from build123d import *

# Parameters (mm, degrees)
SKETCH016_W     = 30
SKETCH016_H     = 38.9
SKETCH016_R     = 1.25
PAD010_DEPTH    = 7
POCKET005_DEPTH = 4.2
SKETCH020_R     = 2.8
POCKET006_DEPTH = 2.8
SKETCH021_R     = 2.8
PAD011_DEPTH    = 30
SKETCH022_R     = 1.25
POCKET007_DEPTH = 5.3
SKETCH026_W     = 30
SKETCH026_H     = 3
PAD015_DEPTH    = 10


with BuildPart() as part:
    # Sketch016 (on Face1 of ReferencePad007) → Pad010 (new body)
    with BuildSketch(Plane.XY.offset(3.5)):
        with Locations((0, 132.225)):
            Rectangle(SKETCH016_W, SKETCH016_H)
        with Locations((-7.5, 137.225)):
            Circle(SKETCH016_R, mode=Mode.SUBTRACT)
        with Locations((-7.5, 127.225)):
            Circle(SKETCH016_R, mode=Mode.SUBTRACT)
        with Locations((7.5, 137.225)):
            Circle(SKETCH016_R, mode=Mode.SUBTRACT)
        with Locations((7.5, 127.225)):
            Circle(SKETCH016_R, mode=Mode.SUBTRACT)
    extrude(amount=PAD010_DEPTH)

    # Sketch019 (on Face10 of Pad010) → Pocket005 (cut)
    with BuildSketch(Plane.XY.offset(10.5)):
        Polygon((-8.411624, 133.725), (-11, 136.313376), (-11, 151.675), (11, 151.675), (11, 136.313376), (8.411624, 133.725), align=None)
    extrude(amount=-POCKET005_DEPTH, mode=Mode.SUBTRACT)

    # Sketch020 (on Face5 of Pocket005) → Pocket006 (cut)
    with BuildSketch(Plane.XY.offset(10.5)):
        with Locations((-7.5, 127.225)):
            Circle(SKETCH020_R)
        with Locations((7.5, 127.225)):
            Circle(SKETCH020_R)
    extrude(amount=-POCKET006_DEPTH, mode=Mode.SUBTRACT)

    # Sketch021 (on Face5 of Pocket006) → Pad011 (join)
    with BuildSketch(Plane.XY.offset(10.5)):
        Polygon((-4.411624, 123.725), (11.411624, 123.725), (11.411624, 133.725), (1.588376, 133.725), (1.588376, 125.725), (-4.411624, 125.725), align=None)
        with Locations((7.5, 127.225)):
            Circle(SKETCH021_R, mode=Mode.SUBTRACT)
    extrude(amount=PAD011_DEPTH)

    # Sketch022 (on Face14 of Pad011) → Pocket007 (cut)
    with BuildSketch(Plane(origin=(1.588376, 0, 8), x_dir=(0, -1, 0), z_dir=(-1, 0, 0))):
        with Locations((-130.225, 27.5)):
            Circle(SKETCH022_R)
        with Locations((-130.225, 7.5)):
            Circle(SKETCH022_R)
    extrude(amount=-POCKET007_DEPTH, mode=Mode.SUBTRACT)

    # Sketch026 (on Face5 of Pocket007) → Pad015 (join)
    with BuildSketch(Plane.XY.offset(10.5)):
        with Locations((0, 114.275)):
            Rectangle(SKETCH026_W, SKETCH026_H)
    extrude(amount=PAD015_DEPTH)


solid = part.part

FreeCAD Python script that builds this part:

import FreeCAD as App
import Part
import Sketcher

V = App.Vector
Q = App.Units.Quantity


def add_polygon(sketch, points):
    """Adds a closed chain of lines whose ends are joined by coincident constraints."""
    first, n = sketch.GeometryCount, len(points)
    for a, b in zip(points, points[1:] + points[:1]):
        sketch.addGeometry(Part.LineSegment(App.Vector(*a, 0), App.Vector(*b, 0)), False)
    for i in range(n):
        sketch.addConstraint(Sketcher.Constraint("Coincident", first + i, 2, first + (i + 1) % n, 1))

doc = App.newDocument("Part")
body = doc.addObject("PartDesign::Body", "Body")

# Sketch on XY plane
sketch1 = body.newObject("Sketcher::SketchObject", "Sketch")
sketch1.AttachmentSupport = (doc.getObject("XY_Plane"), [""])
sketch1.MapMode = "FlatFace"
sketch1.AttachmentOffset = App.Placement(V(0, 0, 3.5), App.Rotation())
add_polygon(sketch1, [(-15, 151.7), (-15, 112.8), (15, 112.8), (15, 151.7)])  # lines 0-3
sketch1.addGeometry(Part.Circle(V(-7.5, 127.2, 0), V(0, 0, 1), 1.2), False)  # 4
sketch1.addGeometry(Part.Circle(V(7.5, 127.2, 0), V(0, 0, 1), 1.2), False)  # 5
sketch1.addGeometry(Part.Circle(V(-7.5, 137.2, 0), V(0, 0, 1), 1.2), False)  # 6
sketch1.addGeometry(Part.Circle(V(7.5, 137.2, 0), V(0, 0, 1), 1.2), False)  # 7
sketch1.addConstraint([
    Sketcher.Constraint("Vertical", 0),
    Sketcher.Constraint("Horizontal", 1),
    Sketcher.Constraint("Vertical", 2),
    Sketcher.Constraint("Horizontal", 3),
    Sketcher.Constraint("Equal", 4, 5),
    Sketcher.Constraint("Equal", 5, 6),
    Sketcher.Constraint("Equal", 6, 7),
    Sketcher.Constraint("Symmetric", 4, 3, 5, 3, -2),
    Sketcher.Constraint("Symmetric", 6, 3, 7, 3, -2),
    Sketcher.Constraint("Vertical", 4, 3, 6, 3),
    Sketcher.Constraint("Diameter", 4, Q("2.5 mm")),
    Sketcher.Constraint("DistanceX", 1, 1, 1, 2, Q("30 mm")),
    Sketcher.Constraint("DistanceY", 0, 2, 0, 1, Q("38.9 mm")),
    Sketcher.Constraint("DistanceX", 0, 2, -1, 1, Q("15 mm")),
    Sketcher.Constraint("DistanceX", 4, 3, 5, 3, Q("15 mm")),
    Sketcher.Constraint("DistanceY", 4, 3, 6, 3, Q("10 mm")),
    Sketcher.Constraint("DistanceY", 0, 2, 4, 3, Q("14.45 mm")),
    Sketcher.Constraint("DistanceY", -1, 1, 4, 3, Q("127.225 mm")),
])
pad1 = body.newObject("PartDesign::Pad", "Pad")
pad1.Profile = sketch1
pad1.Length = 7

# Sketch on XY plane
sketch2 = body.newObject("Sketcher::SketchObject", "Sketch001")
sketch2.AttachmentSupport = (doc.getObject("XY_Plane"), [""])
sketch2.MapMode = "FlatFace"
sketch2.AttachmentOffset = App.Placement(V(0, 0, 10.5), App.Rotation())
add_polygon(sketch2, [(-11, 136.3), (-8.4, 133.7), (8.4, 133.7), (11, 136.3), (11, 151.7), (-11, 151.7)])  # lines 0-5
sketch2.addConstraint([
    Sketcher.Constraint("Horizontal", 1),
    Sketcher.Constraint("Vertical", 3),
    Sketcher.Constraint("Horizontal", 4),
    Sketcher.Constraint("Vertical", 5),
    Sketcher.Constraint("Symmetric", 2, 2, 5, 2, -2),
    Sketcher.Constraint("Perpendicular", 0, 2),
    Sketcher.Constraint("Equal", 0, 2),
    Sketcher.Constraint("DistanceX", 4, 2, 4, 1, Q("22 mm")),
    Sketcher.Constraint("DistanceY", 1, 2, 3, 2, Q("17.95 mm")),
    Sketcher.Constraint("DistanceY", -1, 1, 0, 2, Q("133.725 mm")),
    Sketcher.Constraint("DistanceX", 1, 1, 1, 2, Q("16.823248 mm")),
])
pocket1 = body.newObject("PartDesign::Pocket", "Pocket")
pocket1.Profile = sketch2
pocket1.Length = 4.2

# Sketch on XY plane
sketch3 = body.newObject("Sketcher::SketchObject", "Sketch002")
sketch3.AttachmentSupport = (doc.getObject("XY_Plane"), [""])
sketch3.MapMode = "FlatFace"
sketch3.AttachmentOffset = App.Placement(V(0, 0, 10.5), App.Rotation())
sketch3.addGeometry([
    Part.Circle(V(-7.5, 127.2, 0), V(0, 0, 1), 2.8),
    Part.Circle(V(7.5, 127.2, 0), V(0, 0, 1), 2.8),
], False)
sketch3.addConstraint([
    Sketcher.Constraint("Equal", 0, 1),
    Sketcher.Constraint("Symmetric", 0, 3, 1, 3, -2),
    Sketcher.Constraint("Diameter", 0, Q("5.6 mm")),
    Sketcher.Constraint("DistanceX", 0, 3, 1, 3, Q("15 mm")),
    Sketcher.Constraint("DistanceY", -1, 1, 0, 3, Q("127.225 mm")),
])
pocket2 = body.newObject("PartDesign::Pocket", "Pocket001")
pocket2.Profile = sketch3
pocket2.Length = 2.8

# Sketch on XY plane
sketch4 = body.newObject("Sketcher::SketchObject", "Sketch003")
sketch4.AttachmentSupport = (doc.getObject("XY_Plane"), [""])
sketch4.MapMode = "FlatFace"
sketch4.AttachmentOffset = App.Placement(V(0, 0, 10.5), App.Rotation())
add_polygon(sketch4, [(-4.4, 123.7), (11.4, 123.7), (11.4, 133.7), (1.6, 133.7), (1.6, 125.7), (-4.4, 125.7)])  # lines 0-5
sketch4.addGeometry(Part.Circle(V(7.5, 127.2, 0), V(0, 0, 1), 2.8), False)  # 6
sketch4.addConstraint([
    Sketcher.Constraint("Horizontal", 0),
    Sketcher.Constraint("Vertical", 1),
    Sketcher.Constraint("Horizontal", 2),
    Sketcher.Constraint("Vertical", 3),
    Sketcher.Constraint("Horizontal", 4),
    Sketcher.Constraint("Vertical", 5),
    Sketcher.Constraint("Diameter", 6, Q("5.6 mm")),
    Sketcher.Constraint("DistanceX", 4, 2, 4, 1, Q("6 mm")),
    Sketcher.Constraint("DistanceY", 1, 1, 1, 2, Q("10 mm")),
    Sketcher.Constraint("DistanceY", 3, 2, 3, 1, Q("8 mm")),
    Sketcher.Constraint("DistanceX", -1, 1, 6, 3, Q("7.5 mm")),
    Sketcher.Constraint("DistanceY", 0, 2, 6, 3, Q("3.5 mm")),
    Sketcher.Constraint("DistanceY", -1, 1, 6, 3, Q("127.225 mm")),
    Sketcher.Constraint("DistanceX", 0, 1, 0, 2, Q("15.823248 mm")),
    Sketcher.Constraint("DistanceX", -1, 1, 0, 2, Q("11.411624 mm")),
])
pad2 = body.newObject("PartDesign::Pad", "Pad001")
pad2.Profile = sketch4
pad2.Length = 30

# Sketch on YZ plane
sketch5 = body.newObject("Sketcher::SketchObject", "Sketch004")
sketch5.AttachmentSupport = (doc.getObject("YZ_Plane"), [""])
sketch5.MapMode = "FlatFace"
sketch5.AttachmentOffset = App.Placement(V(0, 0, 1.588376), App.Rotation())
sketch5.addGeometry([
    Part.Circle(V(130.2, 35.5, 0), V(0, 0, 1), 1.2),
    Part.Circle(V(130.2, 15.5, 0), V(0, 0, 1), 1.2),
], False)
sketch5.addConstraint([
    Sketcher.Constraint("Equal", 0, 1),
    Sketcher.Constraint("Vertical", 0, 3, 1, 3),
    Sketcher.Constraint("Diameter", 0, Q("2.5 mm")),
    Sketcher.Constraint("DistanceY", 1, 3, 0, 3, Q("20 mm")),
    Sketcher.Constraint("DistanceY", -1, 1, 0, 3, Q("35.5 mm")),
    Sketcher.Constraint("DistanceX", -1, 1, 0, 3, Q("130.225 mm")),
])
pocket3 = body.newObject("PartDesign::Pocket", "Pocket002")
pocket3.Profile = sketch5
pocket3.Length = 5.3
pocket3.Reversed = True

# Sketch on XY plane
sketch6 = body.newObject("Sketcher::SketchObject", "Sketch005")
sketch6.AttachmentSupport = (doc.getObject("XY_Plane"), [""])
sketch6.MapMode = "FlatFace"
sketch6.AttachmentOffset = App.Placement(V(0, 0, 10.5), App.Rotation())
add_polygon(sketch6, [(-15, 115.8), (-15, 112.8), (15, 112.8), (15, 115.8)])  # lines 0-3
sketch6.addConstraint([
    Sketcher.Constraint("Vertical", 0),
    Sketcher.Constraint("Horizontal", 1),
    Sketcher.Constraint("Vertical", 2),
    Sketcher.Constraint("Horizontal", 3),
    Sketcher.Constraint("DistanceX", 1, 1, 1, 2, Q("30 mm")),
    Sketcher.Constraint("DistanceY", 0, 2, 0, 1, Q("3 mm")),
    Sketcher.Constraint("DistanceX", 0, 2, -1, 1, Q("15 mm")),
    Sketcher.Constraint("DistanceY", -1, 1, 0, 2, Q("112.775 mm")),
])
pad3 = body.newObject("PartDesign::Pad", "Pad002")
pad3.Profile = sketch6
pad3.Length = 10

doc.recompute()
